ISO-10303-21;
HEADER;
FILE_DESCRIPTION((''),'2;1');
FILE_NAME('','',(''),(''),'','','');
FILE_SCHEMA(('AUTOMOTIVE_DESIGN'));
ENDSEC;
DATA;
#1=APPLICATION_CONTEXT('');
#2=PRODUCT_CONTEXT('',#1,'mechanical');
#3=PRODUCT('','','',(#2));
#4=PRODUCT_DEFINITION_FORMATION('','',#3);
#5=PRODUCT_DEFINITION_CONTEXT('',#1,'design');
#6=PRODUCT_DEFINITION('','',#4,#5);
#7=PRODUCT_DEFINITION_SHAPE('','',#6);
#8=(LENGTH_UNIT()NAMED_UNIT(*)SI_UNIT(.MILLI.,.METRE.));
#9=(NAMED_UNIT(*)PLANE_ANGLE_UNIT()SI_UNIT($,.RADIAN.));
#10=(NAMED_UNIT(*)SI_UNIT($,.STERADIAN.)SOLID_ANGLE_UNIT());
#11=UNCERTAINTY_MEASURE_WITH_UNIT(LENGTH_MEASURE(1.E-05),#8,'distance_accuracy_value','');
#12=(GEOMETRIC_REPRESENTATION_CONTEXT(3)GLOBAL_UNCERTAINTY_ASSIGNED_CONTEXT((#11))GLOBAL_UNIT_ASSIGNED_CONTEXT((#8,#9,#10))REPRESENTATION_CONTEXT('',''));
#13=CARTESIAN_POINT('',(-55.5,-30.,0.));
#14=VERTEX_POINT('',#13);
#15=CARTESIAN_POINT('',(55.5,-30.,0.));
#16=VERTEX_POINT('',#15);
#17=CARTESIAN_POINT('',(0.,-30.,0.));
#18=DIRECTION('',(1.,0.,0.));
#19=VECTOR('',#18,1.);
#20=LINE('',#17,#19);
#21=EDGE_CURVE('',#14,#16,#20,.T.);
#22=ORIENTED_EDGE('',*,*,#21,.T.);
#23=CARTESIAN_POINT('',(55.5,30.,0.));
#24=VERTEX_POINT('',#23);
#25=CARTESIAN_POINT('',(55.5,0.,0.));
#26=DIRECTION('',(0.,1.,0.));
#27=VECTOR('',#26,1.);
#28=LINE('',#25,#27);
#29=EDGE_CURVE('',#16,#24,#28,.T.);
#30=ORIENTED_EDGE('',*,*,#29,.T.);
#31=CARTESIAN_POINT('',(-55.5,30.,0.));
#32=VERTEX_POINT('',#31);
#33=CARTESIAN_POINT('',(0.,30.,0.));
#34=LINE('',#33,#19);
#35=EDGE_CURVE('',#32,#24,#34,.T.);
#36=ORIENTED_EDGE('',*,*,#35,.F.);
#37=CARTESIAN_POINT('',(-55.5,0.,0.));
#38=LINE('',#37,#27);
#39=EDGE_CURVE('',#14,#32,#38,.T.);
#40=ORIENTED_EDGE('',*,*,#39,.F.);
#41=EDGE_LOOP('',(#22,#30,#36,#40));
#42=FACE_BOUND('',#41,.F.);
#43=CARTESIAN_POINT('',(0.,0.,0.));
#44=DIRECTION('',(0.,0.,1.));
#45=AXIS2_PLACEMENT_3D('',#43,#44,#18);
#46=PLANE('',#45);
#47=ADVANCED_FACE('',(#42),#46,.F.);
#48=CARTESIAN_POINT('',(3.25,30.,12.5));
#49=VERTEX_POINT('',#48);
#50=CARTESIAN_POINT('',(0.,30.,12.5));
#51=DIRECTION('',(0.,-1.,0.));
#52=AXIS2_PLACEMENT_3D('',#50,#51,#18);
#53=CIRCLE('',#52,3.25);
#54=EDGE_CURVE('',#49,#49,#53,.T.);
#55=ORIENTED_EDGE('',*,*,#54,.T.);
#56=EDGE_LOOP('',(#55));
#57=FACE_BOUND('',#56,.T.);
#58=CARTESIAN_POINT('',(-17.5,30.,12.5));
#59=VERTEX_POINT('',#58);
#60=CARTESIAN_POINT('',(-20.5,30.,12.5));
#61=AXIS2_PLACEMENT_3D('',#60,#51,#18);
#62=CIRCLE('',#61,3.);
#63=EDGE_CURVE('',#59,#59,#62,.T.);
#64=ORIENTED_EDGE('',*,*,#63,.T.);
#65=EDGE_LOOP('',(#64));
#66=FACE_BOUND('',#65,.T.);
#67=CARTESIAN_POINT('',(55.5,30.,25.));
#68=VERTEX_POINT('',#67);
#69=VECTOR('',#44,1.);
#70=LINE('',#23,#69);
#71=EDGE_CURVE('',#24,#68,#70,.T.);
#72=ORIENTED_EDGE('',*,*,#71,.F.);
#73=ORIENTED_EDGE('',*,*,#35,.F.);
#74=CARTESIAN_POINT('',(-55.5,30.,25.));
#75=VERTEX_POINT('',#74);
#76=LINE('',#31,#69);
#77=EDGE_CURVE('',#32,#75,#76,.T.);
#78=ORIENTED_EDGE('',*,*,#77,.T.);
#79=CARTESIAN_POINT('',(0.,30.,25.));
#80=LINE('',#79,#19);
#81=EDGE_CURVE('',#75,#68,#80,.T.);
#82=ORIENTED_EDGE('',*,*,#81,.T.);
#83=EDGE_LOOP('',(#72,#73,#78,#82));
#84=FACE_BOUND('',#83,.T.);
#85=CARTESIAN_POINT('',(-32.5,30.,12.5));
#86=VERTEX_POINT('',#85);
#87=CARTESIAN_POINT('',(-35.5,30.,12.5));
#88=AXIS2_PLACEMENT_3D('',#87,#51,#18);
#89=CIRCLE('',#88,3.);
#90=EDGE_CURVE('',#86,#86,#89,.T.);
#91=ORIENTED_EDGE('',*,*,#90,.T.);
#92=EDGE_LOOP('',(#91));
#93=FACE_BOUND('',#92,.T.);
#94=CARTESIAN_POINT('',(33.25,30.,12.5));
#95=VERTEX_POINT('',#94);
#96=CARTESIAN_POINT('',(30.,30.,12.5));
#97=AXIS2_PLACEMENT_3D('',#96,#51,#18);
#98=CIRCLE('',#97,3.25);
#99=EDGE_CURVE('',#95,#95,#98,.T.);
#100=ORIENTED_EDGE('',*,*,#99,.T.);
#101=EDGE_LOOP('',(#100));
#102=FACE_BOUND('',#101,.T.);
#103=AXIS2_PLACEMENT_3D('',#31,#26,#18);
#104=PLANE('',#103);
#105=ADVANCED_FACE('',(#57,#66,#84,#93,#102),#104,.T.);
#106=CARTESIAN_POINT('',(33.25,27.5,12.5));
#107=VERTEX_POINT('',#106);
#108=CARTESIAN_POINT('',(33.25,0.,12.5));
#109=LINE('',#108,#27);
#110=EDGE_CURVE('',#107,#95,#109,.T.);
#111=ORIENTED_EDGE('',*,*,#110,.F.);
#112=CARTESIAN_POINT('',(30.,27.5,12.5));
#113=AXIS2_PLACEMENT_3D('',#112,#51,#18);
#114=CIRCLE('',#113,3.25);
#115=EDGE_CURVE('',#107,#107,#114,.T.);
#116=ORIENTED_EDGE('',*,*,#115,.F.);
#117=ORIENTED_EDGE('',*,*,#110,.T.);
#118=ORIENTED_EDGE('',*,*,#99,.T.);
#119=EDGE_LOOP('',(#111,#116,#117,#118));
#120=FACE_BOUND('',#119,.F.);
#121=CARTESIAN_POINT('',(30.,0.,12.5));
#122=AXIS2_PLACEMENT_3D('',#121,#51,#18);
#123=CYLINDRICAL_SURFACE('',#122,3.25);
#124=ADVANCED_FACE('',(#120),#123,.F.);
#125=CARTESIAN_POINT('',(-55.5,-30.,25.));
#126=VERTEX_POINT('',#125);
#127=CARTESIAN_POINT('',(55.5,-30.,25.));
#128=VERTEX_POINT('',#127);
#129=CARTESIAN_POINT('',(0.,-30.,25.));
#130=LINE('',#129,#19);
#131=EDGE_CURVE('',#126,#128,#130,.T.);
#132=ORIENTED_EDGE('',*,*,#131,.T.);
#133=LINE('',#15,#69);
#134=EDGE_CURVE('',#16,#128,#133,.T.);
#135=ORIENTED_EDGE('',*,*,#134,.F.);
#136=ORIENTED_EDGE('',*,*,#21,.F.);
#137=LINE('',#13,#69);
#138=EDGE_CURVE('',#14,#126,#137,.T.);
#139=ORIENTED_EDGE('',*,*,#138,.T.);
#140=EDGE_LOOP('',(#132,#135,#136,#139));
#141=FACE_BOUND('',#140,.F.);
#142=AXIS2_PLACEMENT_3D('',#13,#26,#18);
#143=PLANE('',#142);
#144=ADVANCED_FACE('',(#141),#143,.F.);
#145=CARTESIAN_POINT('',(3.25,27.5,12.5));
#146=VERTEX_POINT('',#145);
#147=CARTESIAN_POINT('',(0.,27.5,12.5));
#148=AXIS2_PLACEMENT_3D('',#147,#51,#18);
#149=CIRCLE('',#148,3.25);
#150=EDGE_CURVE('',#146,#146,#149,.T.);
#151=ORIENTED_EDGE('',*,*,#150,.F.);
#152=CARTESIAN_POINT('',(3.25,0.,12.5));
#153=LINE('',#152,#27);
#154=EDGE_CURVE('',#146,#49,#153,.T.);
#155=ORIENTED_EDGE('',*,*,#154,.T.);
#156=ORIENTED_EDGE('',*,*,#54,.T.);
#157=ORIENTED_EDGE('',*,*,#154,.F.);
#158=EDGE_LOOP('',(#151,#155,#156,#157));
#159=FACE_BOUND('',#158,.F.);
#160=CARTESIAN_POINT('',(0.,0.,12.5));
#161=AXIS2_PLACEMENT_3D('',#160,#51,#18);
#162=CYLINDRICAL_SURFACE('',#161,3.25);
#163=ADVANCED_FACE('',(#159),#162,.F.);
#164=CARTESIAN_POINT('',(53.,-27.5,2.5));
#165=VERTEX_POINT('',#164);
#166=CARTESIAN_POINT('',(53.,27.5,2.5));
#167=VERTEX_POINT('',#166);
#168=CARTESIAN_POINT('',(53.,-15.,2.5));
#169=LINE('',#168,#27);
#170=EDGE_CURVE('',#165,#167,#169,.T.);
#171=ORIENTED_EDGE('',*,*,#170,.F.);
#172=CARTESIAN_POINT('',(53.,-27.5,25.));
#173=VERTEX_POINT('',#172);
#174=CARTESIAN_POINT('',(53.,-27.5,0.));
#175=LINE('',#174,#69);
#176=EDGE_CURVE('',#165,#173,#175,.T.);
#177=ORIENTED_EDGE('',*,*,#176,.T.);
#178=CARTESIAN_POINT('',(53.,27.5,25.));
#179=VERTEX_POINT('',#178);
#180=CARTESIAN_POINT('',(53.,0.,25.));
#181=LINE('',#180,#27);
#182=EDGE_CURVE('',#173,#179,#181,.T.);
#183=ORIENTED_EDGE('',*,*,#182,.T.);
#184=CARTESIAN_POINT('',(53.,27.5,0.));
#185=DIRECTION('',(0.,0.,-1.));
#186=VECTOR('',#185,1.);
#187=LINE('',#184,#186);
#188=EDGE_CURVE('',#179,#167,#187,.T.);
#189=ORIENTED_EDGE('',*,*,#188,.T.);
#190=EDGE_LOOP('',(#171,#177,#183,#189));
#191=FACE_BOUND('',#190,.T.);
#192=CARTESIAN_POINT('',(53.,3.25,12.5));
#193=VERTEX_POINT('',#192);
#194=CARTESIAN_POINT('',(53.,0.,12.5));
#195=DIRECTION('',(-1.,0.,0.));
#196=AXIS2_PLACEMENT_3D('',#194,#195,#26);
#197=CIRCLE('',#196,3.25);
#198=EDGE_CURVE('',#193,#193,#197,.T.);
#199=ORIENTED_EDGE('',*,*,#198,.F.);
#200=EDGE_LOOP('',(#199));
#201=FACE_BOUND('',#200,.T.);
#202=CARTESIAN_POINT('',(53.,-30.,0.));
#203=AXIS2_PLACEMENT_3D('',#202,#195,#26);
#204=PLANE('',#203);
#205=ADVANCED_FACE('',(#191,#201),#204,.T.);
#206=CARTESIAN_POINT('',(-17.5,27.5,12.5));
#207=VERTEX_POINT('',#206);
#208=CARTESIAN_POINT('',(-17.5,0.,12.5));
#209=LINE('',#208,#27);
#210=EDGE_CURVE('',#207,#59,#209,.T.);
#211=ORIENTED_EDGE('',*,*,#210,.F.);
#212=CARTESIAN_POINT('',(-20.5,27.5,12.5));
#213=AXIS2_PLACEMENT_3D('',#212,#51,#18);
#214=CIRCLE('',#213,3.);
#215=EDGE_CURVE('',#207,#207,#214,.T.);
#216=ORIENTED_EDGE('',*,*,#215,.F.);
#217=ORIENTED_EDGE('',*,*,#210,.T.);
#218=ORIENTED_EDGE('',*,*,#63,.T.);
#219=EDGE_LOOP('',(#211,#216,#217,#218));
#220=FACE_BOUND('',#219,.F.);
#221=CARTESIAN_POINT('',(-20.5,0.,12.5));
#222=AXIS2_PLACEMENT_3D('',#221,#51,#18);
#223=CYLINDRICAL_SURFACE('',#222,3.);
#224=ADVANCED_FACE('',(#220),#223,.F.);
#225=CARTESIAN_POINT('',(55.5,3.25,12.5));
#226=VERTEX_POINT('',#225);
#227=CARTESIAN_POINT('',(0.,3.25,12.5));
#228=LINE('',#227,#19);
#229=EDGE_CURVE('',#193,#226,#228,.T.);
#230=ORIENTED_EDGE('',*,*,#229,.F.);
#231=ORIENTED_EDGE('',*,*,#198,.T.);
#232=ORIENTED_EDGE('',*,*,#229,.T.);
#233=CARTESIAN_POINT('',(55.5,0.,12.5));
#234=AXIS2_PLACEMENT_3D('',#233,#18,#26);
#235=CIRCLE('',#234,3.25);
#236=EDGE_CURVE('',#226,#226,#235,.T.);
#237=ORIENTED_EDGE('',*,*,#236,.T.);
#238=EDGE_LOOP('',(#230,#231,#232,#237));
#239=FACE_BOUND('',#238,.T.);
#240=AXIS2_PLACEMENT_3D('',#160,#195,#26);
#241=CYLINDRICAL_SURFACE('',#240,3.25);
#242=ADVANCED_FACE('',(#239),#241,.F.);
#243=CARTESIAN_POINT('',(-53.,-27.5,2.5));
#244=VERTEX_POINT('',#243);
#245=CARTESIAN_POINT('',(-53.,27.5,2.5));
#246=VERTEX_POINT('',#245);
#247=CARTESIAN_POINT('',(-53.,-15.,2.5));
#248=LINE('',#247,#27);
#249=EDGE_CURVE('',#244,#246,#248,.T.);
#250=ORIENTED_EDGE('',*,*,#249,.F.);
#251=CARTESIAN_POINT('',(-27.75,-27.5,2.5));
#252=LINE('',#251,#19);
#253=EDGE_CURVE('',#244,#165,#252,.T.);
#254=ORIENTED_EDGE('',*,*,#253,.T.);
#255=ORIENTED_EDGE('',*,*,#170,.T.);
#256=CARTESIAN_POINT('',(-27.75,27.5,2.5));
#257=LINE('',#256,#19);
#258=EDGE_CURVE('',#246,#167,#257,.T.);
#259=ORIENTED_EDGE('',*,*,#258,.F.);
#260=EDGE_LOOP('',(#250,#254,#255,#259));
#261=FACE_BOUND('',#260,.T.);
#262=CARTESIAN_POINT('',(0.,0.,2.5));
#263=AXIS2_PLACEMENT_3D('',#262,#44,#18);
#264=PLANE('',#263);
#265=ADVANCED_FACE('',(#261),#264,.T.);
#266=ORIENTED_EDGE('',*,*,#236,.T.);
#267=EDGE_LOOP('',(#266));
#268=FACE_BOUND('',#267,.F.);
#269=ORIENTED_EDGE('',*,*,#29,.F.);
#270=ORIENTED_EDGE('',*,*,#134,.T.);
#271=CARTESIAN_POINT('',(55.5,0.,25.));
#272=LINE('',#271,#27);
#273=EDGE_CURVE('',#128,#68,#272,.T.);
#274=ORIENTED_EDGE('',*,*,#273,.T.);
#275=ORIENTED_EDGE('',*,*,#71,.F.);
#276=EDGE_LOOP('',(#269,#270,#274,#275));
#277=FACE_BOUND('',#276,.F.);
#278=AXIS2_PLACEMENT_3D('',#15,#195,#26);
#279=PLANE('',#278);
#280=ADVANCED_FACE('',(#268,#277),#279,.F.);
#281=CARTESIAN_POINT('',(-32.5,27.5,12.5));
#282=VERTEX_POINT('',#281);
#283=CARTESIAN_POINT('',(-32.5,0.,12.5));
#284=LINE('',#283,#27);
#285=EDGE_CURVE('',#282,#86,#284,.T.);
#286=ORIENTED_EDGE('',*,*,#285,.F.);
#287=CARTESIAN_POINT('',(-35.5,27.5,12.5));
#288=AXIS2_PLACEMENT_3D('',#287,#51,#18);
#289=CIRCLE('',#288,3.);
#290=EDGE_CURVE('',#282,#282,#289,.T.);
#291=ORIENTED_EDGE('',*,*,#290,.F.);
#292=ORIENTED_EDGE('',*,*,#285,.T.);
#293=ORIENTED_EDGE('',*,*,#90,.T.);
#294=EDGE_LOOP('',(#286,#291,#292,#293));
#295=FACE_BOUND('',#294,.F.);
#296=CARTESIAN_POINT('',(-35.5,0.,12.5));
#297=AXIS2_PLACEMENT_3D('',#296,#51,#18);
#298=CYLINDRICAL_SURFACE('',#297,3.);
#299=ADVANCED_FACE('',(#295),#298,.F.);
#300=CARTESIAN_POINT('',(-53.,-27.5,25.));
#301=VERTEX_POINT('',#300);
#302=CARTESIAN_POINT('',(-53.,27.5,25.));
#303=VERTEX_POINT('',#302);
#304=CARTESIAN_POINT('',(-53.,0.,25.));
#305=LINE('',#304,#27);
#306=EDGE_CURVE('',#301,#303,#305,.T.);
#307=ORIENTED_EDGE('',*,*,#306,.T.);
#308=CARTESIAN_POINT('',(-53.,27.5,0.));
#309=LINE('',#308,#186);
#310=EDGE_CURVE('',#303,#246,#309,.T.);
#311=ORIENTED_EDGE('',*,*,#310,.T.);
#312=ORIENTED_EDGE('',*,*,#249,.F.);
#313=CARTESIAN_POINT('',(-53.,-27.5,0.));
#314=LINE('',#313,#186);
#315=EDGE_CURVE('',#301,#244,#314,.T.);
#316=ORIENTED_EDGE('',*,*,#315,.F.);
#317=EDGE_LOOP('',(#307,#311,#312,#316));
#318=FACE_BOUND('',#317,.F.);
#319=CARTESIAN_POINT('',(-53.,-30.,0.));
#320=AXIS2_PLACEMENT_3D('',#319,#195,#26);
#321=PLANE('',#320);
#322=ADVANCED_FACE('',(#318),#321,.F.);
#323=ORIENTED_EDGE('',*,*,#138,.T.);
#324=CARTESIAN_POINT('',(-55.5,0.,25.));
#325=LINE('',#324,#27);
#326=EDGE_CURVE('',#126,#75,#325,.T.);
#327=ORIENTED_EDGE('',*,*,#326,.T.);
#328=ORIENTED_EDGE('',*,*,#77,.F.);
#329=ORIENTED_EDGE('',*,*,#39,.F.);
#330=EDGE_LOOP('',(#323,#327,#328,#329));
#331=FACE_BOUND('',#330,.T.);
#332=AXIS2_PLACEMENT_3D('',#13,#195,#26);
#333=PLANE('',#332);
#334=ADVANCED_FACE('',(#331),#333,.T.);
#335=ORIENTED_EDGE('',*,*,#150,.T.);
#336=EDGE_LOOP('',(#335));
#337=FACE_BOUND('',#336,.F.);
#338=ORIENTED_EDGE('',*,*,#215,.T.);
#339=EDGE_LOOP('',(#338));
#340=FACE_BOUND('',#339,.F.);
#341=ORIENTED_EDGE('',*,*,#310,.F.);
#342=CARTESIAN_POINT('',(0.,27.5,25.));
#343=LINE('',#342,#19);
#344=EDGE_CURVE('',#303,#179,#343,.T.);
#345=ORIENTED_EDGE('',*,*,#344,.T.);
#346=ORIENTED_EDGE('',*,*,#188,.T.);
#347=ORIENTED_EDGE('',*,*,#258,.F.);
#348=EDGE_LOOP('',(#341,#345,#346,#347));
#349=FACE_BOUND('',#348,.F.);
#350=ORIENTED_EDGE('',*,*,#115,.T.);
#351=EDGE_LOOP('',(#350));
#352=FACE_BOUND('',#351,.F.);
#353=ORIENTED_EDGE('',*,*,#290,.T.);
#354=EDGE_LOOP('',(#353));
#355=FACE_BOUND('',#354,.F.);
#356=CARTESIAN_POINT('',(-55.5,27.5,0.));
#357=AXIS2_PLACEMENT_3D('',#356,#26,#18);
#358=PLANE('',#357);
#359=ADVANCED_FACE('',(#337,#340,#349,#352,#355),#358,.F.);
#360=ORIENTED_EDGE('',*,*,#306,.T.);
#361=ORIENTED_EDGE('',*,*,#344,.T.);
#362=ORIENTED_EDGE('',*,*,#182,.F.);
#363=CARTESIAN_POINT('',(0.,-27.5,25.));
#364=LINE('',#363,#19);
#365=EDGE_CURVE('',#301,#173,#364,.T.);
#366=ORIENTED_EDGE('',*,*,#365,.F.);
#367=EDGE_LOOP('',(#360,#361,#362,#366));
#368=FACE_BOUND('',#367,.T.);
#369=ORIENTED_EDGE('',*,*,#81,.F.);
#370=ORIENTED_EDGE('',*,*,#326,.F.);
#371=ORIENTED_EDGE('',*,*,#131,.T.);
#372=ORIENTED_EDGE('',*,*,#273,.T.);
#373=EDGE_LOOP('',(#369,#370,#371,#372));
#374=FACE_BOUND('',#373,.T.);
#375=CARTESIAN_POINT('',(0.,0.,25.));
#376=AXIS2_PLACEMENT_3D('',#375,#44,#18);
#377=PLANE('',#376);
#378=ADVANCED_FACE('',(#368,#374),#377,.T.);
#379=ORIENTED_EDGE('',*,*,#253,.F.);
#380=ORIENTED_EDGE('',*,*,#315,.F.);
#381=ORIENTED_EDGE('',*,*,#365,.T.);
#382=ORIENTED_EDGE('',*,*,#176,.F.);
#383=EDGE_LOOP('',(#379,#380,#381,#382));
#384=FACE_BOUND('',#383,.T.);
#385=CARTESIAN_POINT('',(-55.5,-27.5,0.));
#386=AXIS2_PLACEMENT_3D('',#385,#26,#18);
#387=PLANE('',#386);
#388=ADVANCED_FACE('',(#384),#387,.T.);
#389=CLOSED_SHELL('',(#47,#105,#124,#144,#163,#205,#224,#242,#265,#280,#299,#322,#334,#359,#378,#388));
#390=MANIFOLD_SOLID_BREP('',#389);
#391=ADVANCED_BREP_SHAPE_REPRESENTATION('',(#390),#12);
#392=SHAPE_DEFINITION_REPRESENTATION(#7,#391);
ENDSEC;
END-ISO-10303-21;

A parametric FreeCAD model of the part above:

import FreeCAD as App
import Part
import Sketcher


def faces_at(feature, points):
    """Names of the faces that lie closest to the given points."""
    faces = feature.Shape.Faces
    near = lambda p: min(range(len(faces)), key=lambda i: faces[i].distToShape(Part.Vertex(*p))[0])
    return sorted({f"Face{near(p) + 1}" for p in points})


def add_polygon(sketch, points):
    """Adds a closed chain of lines whose ends are joined by coincident constraints."""
    first, n = sketch.GeometryCount, len(points)
    for a, b in zip(points, points[1:] + points[:1]):
        sketch.addGeometry(Part.LineSegment(App.Vector(*a, 0), App.Vector(*b, 0)), False)
    for i in range(n):
        sketch.addConstraint(Sketcher.Constraint("Coincident", first + i, 2, first + (i + 1) % n, 1))

doc = App.newDocument("Part")
body = doc.addObject("PartDesign::Body", "Body")

# Sketch on XY plane
sketch1 = body.newObject("Sketcher::SketchObject", "Sketch")
sketch1.AttachmentSupport = (doc.getObject("XY_Plane"), [""])
sketch1.MapMode = "FlatFace"
add_polygon(sketch1, [(-55.5, 30), (-55.5, -30), (55.5, -30), (55.5, 30)])  # lines 0-3
sketch1.addConstraint(Sketcher.Constraint("Vertical", 0))
sketch1.addConstraint(Sketcher.Constraint("Horizontal", 1))
sketch1.addConstraint(Sketcher.Constraint("Vertical", 2))
sketch1.addConstraint(Sketcher.Constraint("Horizontal", 3))
sketch1.addConstraint(Sketcher.Constraint("Symmetric", 0, 2, 2, 2, -1, 1))
sketch1.addConstraint(Sketcher.Constraint("DistanceX", 1, 1, 1, 2, 111.0))
sketch1.addConstraint(Sketcher.Constraint("DistanceY", 0, 2, 0, 1, 60.0))
pad1 = body.newObject("PartDesign::Pad", "Pad")
pad1.Profile = sketch1
pad1.Length = 25
doc.recompute()

thickness = body.newObject("PartDesign::Thickness", "Thickness")
thickness.Base = (pad1, faces_at(pad1, [(0, 0, 25)]))
thickness.Value = 2.5
thickness.Reversed = True
thickness.Join = "Arc"

# Sketch on YZ plane
sketch2 = body.newObject("Sketcher::SketchObject", "Sketch001")
sketch2.AttachmentSupport = (doc.getObject("YZ_Plane"), [""])
sketch2.MapMode = "FlatFace"
sketch2.addGeometry(Part.Circle(App.Vector(0, 12.5, 0), App.Vector(0, 0, 1), 3.25), False)
sketch2.addConstraint(Sketcher.Constraint("PointOnObject", 0, 3, -2))
sketch2.addConstraint(Sketcher.Constraint("Diameter", 0, 6.5))
sketch2.addConstraint(Sketcher.Constraint("DistanceY", -1, 1, 0, 3, 12.5))
pocket1 = body.newObject("PartDesign::Pocket", "Pocket")
pocket1.Profile = sketch2
pocket1.Type = "ThroughAll"
pocket1.Reversed = True

# Sketch on XZ plane
sketch3 = body.newObject("Sketcher::SketchObject", "Sketch002")
sketch3.AttachmentSupport = (doc.getObject("XZ_Plane"), [""])
sketch3.MapMode = "FlatFace"
sketch3.addGeometry(Part.Circle(App.Vector(0, 12.5, 0), App.Vector(0, 0, 1), 3.25), False)
sketch3.addGeometry(Part.Circle(App.Vector(30, 12.5, 0), App.Vector(0, 0, 1), 3.25), False)
sketch3.addConstraint(Sketcher.Constraint("Equal", 0, 1))
sketch3.addConstraint(Sketcher.Constraint("PointOnObject", 0, 3, -2))
sketch3.addConstraint(Sketcher.Constraint("Horizontal", 0, 3, 1, 3))
sketch3.addConstraint(Sketcher.Constraint("Diameter", 0, 6.5))
sketch3.addConstraint(Sketcher.Constraint("DistanceX", -1, 1, 1, 3, 30.0))
sketch3.addConstraint(Sketcher.Constraint("DistanceY", -1, 1, 0, 3, 12.5))
pocket2 = body.newObject("PartDesign::Pocket", "Pocket001")
pocket2.Profile = sketch3
pocket2.Type = "ThroughAll"

# Sketch on XZ plane
sketch4 = body.newObject("Sketcher::SketchObject", "Sketch003")
sketch4.AttachmentSupport = (doc.getObject("XZ_Plane"), [""])
sketch4.MapMode = "FlatFace"
sketch4.addGeometry(Part.Circle(App.Vector(-35.5, 12.5, 0), App.Vector(0, 0, 1), 3), False)
sketch4.addGeometry(Part.Circle(App.Vector(-20.5, 12.5, 0), App.Vector(0, 0, 1), 3), False)
sketch4.addConstraint(Sketcher.Constraint("Equal", 0, 1))
sketch4.addConstraint(Sketcher.Constraint("Horizontal", 0, 3, 1, 3))
sketch4.addConstraint(Sketcher.Constraint("Diameter", 0, 6.0))
sketch4.addConstraint(Sketcher.Constraint("DistanceX", 0, 3, 1, 3, 15.0))
sketch4.addConstraint(Sketcher.Constraint("DistanceX", 0, 3, -1, 1, 35.5))
sketch4.addConstraint(Sketcher.Constraint("DistanceY", -1, 1, 0, 3, 12.5))
pocket3 = body.newObject("PartDesign::Pocket", "Pocket002")
pocket3.Profile = sketch4
pocket3.Type = "ThroughAll"

doc.recompute()
